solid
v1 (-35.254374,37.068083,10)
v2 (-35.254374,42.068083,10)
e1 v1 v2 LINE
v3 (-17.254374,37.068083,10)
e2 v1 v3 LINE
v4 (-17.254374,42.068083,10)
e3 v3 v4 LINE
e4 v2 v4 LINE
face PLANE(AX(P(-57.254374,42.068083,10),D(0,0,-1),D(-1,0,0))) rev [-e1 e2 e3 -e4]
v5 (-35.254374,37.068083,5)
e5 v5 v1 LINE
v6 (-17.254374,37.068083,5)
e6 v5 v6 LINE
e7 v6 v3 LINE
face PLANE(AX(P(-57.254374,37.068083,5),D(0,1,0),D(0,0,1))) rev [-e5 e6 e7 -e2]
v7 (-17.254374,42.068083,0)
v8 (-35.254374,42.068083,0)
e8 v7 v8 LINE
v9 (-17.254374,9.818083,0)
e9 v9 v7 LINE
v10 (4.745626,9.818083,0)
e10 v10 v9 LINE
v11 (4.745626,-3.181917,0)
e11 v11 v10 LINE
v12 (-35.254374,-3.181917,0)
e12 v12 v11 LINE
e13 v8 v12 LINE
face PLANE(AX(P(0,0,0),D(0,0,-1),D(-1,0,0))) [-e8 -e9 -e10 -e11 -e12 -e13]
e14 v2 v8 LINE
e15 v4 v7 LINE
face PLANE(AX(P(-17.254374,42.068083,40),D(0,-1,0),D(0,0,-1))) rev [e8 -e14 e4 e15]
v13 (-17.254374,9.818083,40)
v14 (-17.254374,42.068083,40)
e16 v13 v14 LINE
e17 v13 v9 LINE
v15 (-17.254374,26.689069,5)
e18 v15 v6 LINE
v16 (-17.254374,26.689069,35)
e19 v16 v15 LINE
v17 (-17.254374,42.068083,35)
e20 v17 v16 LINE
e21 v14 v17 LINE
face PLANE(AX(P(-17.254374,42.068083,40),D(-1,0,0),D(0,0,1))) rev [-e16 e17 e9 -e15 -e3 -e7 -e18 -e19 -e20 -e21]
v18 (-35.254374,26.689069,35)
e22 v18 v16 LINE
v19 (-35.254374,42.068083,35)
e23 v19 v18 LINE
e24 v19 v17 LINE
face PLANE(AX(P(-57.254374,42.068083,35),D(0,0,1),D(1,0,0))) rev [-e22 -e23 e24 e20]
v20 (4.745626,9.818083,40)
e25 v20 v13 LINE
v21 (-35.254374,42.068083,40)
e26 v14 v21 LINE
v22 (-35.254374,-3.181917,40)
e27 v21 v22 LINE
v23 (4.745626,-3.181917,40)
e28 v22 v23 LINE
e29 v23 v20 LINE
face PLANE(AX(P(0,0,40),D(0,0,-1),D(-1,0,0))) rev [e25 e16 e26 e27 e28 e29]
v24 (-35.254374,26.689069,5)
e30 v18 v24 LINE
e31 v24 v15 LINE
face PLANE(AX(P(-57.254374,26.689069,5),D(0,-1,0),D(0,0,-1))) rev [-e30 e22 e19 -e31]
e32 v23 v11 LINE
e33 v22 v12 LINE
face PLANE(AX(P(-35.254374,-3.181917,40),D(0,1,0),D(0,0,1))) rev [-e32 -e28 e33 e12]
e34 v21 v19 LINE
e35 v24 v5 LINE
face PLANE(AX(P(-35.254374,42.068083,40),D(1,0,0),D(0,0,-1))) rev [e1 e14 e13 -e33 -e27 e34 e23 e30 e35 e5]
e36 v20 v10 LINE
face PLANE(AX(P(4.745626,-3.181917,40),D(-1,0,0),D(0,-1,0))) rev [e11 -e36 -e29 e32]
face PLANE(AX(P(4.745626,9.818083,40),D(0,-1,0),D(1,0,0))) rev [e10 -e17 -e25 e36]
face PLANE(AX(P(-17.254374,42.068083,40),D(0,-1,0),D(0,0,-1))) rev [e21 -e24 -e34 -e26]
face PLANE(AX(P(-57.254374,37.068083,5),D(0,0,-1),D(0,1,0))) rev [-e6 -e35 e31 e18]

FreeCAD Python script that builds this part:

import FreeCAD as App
import Part
import Sketcher

V = App.Vector
Q = App.Units.Quantity


def add_polygon(sketch, points):
    """Adds a closed chain of lines whose ends are joined by coincident constraints."""
    first, n = sketch.GeometryCount, len(points)
    for a, b in zip(points, points[1:] + points[:1]):
        sketch.addGeometry(Part.LineSegment(App.Vector(*a, 0), App.Vector(*b, 0)), False)
    for i in range(n):
        sketch.addConstraint(Sketcher.Constraint("Coincident", first + i, 2, first + (i + 1) % n, 1))

doc = App.newDocument("Part")
body = doc.addObject("PartDesign::Body", "Body")

sketch1 = doc.addObject("Sketcher::SketchObject", "Sketch")
body.addObject(sketch1)
sketch1.AttachmentSupport = (doc.XY_Plane, [""])
sketch1.MapMode = "FlatFace"
add_polygon(sketch1, [(-17.254374, 42.068083), (-35.254374, 42.068083), (-35.254374, -3.181917), (4.745626, -3.181917), (4.745626, 9.818083), (-17.254374, 9.818083)])
sketch1.addConstraint([
    Sketcher.Constraint("Horizontal", 0),
    Sketcher.Constraint("Vertical", 1),
    Sketcher.Constraint("Horizontal", 2),
    Sketcher.Constraint("Vertical", 3),
    Sketcher.Constraint("Horizontal", 4),
    Sketcher.Constraint("Vertical", 5),
    Sketcher.Constraint("DistanceX", 0, 2, 0, 1, Q("18 mm")),
    Sketcher.Constraint("DistanceX", 2, 1, 2, 2, Q("40 mm")),
    Sketcher.Constraint("DistanceY", 3, 1, 3, 2, Q("13 mm")),
    Sketcher.Constraint("DistanceY", 1, 2, 1, 1, Q("45.25 mm")),
    Sketcher.Constraint("DistanceX", 0, 2, -1, 1, Q("35.254374 mm")),
    Sketcher.Constraint("DistanceY", -1, 1, 0, 2, Q("42.068083 mm")),
])
pad1 = doc.addObject("PartDesign::Pad", "Pad")
body.addObject(pad1)
pad1.Profile = sketch1
pad1.Length = 40

sketch2 = doc.addObject("Sketcher::SketchObject", "Sketch001")
body.addObject(sketch2)
sketch2.AttachmentSupport = (doc.YZ_Plane, [""])
sketch2.MapMode = "FlatFace"
sketch2.AttachmentOffset = App.Placement(V(0, 0, -17.254374), App.Rotation())
add_polygon(sketch2, [(42.068083, 35), (37.068083, 35), (37.068083, 10), (42.068083, 10)])
sketch2.addConstraint([
    Sketcher.Constraint("Horizontal", 0),
    Sketcher.Constraint("Vertical", 1),
    Sketcher.Constraint("Horizontal", 2),
    Sketcher.Constraint("Vertical", 3),
    Sketcher.Constraint("DistanceX", 0, 2, 0, 1, Q("5 mm")),
    Sketcher.Constraint("DistanceY", 1, 2, 1, 1, Q("25 mm")),
    Sketcher.Constraint("DistanceY", -1, 1, 0, 2, Q("35 mm")),
    Sketcher.Constraint("DistanceX", -1, 1, 0, 2, Q("37.068083 mm")),
])
pocket1 = doc.addObject("PartDesign::Pocket", "Pocket")
body.addObject(pocket1)
pocket1.Profile = sketch2
pocket1.Length = 40

sketch3 = doc.addObject("Sketcher::SketchObject", "Sketch002")
body.addObject(sketch3)
sketch3.AttachmentSupport = (doc.YZ_Plane, [""])
sketch3.MapMode = "FlatFace"
sketch3.AttachmentOffset = App.Placement(V(0, 0, -17.254374), App.Rotation())
add_polygon(sketch3, [(37.068083, 35), (26.689069, 35), (26.689069, 5), (37.068083, 5)])
sketch3.addConstraint([
    Sketcher.Constraint("Horizontal", 0),
    Sketcher.Constraint("Vertical", 1),
    Sketcher.Constraint("Horizontal", 2),
    Sketcher.Constraint("Vertical", 3),
    Sketcher.Constraint("DistanceY", 1, 2, 1, 1, Q("30 mm")),
    Sketcher.Constraint("DistanceY", -1, 1, 0, 2, Q("35 mm")),
    Sketcher.Constraint("DistanceX", 0, 2, 0, 1, Q("10.379014 mm")),
    Sketcher.Constraint("DistanceX", -1, 1, 0, 2, Q("26.689069 mm")),
])
pocket2 = doc.addObject("PartDesign::Pocket", "Pocket001")
body.addObject(pocket2)
pocket2.Profile = sketch3
pocket2.Length = 40

doc.recompute()
